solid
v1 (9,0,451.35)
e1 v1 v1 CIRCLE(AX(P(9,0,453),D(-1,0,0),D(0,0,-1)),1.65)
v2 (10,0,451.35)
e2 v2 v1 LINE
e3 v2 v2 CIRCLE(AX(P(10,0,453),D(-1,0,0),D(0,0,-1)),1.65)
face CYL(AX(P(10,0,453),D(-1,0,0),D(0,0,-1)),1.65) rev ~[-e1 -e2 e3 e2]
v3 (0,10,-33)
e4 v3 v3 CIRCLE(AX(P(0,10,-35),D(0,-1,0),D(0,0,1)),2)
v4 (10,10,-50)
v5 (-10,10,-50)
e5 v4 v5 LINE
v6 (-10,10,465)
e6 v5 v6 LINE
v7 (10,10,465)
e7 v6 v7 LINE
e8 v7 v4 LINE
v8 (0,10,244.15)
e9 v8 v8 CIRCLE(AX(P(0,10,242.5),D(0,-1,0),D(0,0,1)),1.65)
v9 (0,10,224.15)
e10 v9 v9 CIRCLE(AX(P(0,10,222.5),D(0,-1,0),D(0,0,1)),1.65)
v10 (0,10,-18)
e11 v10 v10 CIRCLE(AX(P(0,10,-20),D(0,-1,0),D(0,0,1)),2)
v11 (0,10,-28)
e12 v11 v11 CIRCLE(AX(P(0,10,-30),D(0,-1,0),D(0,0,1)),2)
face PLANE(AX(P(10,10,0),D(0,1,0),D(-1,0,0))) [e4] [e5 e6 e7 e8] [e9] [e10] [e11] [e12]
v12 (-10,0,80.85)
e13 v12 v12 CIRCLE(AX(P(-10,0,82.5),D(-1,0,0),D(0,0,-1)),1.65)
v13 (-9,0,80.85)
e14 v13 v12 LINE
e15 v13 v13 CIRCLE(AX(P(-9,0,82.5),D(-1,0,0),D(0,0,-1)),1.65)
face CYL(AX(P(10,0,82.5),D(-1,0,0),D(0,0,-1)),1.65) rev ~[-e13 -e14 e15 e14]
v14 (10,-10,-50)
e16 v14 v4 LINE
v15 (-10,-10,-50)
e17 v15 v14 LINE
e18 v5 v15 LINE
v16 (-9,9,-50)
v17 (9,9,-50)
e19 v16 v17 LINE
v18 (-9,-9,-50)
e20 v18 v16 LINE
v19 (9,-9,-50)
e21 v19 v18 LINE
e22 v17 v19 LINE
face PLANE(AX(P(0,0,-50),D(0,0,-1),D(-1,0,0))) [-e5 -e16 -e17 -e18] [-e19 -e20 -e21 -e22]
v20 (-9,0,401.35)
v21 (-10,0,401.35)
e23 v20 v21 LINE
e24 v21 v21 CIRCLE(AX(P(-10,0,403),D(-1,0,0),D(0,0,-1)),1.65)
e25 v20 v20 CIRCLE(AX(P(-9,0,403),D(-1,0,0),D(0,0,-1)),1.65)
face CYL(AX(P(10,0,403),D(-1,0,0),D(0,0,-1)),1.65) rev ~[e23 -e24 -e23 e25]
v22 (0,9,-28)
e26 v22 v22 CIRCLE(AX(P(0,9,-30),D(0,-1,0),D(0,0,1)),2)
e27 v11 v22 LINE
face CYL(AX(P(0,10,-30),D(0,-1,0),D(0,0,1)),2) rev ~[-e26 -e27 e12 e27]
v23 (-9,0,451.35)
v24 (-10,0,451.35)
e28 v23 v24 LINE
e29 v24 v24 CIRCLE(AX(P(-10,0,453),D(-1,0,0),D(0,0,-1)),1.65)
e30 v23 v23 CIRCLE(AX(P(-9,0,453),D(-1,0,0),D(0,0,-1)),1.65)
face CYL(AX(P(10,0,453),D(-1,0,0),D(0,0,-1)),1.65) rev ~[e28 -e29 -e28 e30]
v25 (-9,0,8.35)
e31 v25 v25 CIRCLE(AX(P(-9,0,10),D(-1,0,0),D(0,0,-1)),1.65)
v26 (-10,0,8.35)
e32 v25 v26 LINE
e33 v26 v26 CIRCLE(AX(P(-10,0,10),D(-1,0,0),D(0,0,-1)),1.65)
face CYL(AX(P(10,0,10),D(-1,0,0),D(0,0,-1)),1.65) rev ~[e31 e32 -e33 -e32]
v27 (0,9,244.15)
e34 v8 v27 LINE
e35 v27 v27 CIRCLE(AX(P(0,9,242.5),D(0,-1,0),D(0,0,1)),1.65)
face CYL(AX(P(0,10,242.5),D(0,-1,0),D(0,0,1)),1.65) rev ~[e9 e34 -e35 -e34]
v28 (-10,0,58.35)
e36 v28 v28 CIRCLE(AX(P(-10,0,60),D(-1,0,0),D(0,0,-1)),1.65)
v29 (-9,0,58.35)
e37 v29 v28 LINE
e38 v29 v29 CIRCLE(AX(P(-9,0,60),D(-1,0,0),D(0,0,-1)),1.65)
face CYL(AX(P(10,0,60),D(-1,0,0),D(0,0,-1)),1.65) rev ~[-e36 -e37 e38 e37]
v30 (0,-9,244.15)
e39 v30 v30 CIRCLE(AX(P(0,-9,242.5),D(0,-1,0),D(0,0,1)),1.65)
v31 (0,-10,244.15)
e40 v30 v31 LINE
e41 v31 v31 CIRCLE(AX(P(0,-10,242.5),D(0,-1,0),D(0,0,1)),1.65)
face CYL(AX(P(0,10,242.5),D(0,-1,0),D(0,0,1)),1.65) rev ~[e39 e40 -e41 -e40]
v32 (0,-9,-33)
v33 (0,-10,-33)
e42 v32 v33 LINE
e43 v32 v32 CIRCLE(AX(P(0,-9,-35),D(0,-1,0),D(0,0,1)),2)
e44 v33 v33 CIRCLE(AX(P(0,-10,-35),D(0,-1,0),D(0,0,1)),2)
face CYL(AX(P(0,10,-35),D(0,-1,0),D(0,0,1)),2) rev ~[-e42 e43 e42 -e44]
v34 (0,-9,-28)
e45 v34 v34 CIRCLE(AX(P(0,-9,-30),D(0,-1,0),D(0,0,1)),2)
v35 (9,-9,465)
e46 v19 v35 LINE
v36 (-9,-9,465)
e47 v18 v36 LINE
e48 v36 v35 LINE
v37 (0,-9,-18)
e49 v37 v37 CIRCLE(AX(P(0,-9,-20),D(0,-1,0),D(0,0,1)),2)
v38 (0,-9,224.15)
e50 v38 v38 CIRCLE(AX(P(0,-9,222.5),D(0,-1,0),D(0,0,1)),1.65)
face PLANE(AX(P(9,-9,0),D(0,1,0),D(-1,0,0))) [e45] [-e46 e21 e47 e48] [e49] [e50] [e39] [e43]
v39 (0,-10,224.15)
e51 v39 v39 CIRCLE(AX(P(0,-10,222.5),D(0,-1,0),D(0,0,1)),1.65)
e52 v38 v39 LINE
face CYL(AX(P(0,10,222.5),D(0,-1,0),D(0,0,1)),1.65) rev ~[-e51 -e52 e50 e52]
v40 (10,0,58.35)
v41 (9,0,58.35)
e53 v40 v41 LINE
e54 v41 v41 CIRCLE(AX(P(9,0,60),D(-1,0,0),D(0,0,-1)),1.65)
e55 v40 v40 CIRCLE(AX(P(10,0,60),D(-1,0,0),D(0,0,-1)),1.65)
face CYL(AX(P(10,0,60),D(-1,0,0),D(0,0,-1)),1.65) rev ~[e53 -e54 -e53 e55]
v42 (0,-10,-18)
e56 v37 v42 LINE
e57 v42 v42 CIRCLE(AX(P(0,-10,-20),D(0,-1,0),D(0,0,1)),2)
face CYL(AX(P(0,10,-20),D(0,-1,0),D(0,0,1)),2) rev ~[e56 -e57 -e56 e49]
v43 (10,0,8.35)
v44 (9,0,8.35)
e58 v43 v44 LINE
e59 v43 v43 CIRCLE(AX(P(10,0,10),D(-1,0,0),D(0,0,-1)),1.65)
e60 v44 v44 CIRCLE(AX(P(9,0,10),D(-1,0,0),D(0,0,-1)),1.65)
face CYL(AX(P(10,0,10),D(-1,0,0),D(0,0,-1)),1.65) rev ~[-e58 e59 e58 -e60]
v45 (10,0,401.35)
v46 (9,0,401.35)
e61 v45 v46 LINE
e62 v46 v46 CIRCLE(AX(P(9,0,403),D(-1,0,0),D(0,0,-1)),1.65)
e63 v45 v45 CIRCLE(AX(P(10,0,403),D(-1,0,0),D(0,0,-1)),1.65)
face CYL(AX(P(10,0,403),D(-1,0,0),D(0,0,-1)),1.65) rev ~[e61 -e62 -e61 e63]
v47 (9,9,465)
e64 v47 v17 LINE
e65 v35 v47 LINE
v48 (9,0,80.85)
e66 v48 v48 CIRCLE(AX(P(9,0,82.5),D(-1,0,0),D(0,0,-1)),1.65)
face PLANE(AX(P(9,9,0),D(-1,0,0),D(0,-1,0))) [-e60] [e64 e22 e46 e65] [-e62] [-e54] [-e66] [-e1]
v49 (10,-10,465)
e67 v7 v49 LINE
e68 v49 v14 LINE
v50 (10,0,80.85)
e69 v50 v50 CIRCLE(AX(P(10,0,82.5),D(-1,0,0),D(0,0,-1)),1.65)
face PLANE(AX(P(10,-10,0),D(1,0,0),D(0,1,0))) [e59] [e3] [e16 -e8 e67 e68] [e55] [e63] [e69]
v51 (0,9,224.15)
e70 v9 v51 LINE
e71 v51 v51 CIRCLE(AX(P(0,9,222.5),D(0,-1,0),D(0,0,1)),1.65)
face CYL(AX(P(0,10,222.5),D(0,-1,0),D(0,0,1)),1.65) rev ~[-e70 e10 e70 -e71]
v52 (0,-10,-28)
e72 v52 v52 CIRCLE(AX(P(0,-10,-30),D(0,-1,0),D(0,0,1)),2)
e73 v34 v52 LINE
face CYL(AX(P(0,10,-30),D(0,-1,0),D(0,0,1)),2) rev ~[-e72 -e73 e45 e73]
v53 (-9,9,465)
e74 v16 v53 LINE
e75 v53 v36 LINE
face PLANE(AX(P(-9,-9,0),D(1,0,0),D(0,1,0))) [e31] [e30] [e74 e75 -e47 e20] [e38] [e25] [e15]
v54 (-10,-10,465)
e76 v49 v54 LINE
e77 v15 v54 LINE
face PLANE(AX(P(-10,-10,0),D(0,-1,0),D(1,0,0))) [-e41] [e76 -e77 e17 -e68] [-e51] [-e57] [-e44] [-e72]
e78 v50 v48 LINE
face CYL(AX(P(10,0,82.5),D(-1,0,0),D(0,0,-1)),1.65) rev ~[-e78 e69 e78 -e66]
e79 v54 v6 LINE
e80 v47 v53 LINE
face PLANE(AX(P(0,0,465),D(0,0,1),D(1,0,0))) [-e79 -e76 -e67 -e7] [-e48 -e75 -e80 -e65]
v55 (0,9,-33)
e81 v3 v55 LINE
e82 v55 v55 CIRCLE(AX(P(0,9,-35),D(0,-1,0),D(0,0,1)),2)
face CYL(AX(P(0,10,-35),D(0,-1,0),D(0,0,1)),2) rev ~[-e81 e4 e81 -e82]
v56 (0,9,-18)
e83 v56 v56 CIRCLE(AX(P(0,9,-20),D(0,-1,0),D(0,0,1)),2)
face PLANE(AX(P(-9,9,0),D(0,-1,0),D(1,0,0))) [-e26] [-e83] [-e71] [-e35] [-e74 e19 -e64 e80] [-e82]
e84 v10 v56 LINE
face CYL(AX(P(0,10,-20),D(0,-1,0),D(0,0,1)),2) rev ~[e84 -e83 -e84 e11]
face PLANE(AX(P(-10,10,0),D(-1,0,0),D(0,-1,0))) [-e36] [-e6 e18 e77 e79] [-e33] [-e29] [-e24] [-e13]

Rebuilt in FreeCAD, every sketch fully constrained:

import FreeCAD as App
import Part
import Sketcher

doc = App.newDocument("Part")
body = doc.addObject("PartDesign::Body", "Body")

sketch1 = body.newObject("Sketcher::SketchObject", "Sketch")
sketch1.AttachmentSupport = (doc.getObject("XY_Plane"), [""])
sketch1.MapMode = "FlatFace"
sketch1.addGeometry([
    Part.LineSegment(App.Vector(-10, -10, 0), App.Vector(10, -10, 0)),
    Part.LineSegment(App.Vector(10, -10, 0), App.Vector(10, 10, 0)),
    Part.LineSegment(App.Vector(10, 10, 0), App.Vector(-10, 10, 0)),
    Part.LineSegment(App.Vector(-10, 10, 0), App.Vector(-10, -10, 0)),
    Part.LineSegment(App.Vector(-9, 9, 0), App.Vector(9, 9, 0)),
    Part.LineSegment(App.Vector(9, 9, 0), App.Vector(9, -9, 0)),
    Part.LineSegment(App.Vector(9, -9, 0), App.Vector(-9, -9, 0)),
    Part.LineSegment(App.Vector(-9, -9, 0), App.Vector(-9, 9, 0)),
], False)
sketch1.addConstraint([
    Sketcher.Constraint("Coincident", 0, 2, 1, 1),
    Sketcher.Constraint("Coincident", 1, 2, 2, 1),
    Sketcher.Constraint("Coincident", 2, 2, 3, 1),
    Sketcher.Constraint("Coincident", 3, 2, 0, 1),
    Sketcher.Constraint("Coincident", 4, 2, 5, 1),
    Sketcher.Constraint("Coincident", 5, 2, 6, 1),
    Sketcher.Constraint("Coincident", 6, 2, 7, 1),
    Sketcher.Constraint("Coincident", 7, 2, 4, 1),
    Sketcher.Constraint("Horizontal", 0),
    Sketcher.Constraint("Vertical", 1),
    Sketcher.Constraint("Horizontal", 2),
    Sketcher.Constraint("Vertical", 3),
    Sketcher.Constraint("Horizontal", 4),
    Sketcher.Constraint("Vertical", 5),
    Sketcher.Constraint("Horizontal", 6),
    Sketcher.Constraint("Vertical", 7),
    Sketcher.Constraint("Symmetric", 0, 2, 2, 2, -1, 1),
    Sketcher.Constraint("Symmetric", 4, 2, 6, 2, -1, 1),
    Sketcher.Constraint("Equal", 2, 1),
    Sketcher.Constraint("Equal", 6, 5),
    Sketcher.Constraint("DistanceX", 0, 1, 0, 2, 20.0),
    Sketcher.Constraint("DistanceX", 4, 2, 1, 2, 1.0),
])
pad1 = body.newObject("PartDesign::Pad", "Pad")
pad1.Profile = sketch1
pad1.Length = 465

sketch2 = body.newObject("Sketcher::SketchObject", "Sketch001")
sketch2.AttachmentSupport = (doc.getObject("YZ_Plane"), [""])
sketch2.MapMode = "FlatFace"
sketch2.AttachmentOffset = App.Placement(App.Vector(0, 0, 10), App.Rotation())
sketch2.addGeometry([
    Part.Circle(App.Vector(0, 403, 0), App.Vector(0, 0, 1), 1.6),
    Part.Circle(App.Vector(0, 60, 0), App.Vector(0, 0, 1), 1.6),
    Part.Circle(App.Vector(0, 10, 0), App.Vector(0, 0, 1), 1.6),
    Part.Circle(App.Vector(0, 453, 0), App.Vector(0, 0, 1), 1.6),
    Part.Circle(App.Vector(0, 82.5, 0), App.Vector(0, 0, 1), 1.6),
], False)
sketch2.addConstraint([
    Sketcher.Constraint("Equal", 0, 1),
    Sketcher.Constraint("Equal", 1, 2),
    Sketcher.Constraint("Equal", 2, 3),
    Sketcher.Constraint("Equal", 3, 4),
    Sketcher.Constraint("PointOnObject", 0, 3, -2),
    Sketcher.Constraint("PointOnObject", 1, 3, -2),
    Sketcher.Constraint("PointOnObject", 2, 3, -2),
    Sketcher.Constraint("PointOnObject", 3, 3, -2),
    Sketcher.Constraint("PointOnObject", 4, 3, -2),
    Sketcher.Constraint("Diameter", 0, 3.3),
    Sketcher.Constraint("DistanceY", -1, 1, 0, 3, 403.0),
    Sketcher.Constraint("DistanceY", -1, 1, 1, 3, 60.0),
    Sketcher.Constraint("DistanceY", -1, 1, 2, 3, 10.0),
    Sketcher.Constraint("DistanceY", -1, 1, 3, 3, 453.0),
    Sketcher.Constraint("DistanceY", -1, 1, 4, 3, 82.5),
])
doc.recompute()
hole = body.newObject("PartDesign::Hole", "Hole")
hole.Profile = sketch2
hole.ThreadType = "None"
hole.Diameter = 3.3
hole.DepthType = "ThroughAll"

sketch3 = body.newObject("Sketcher::SketchObject", "Sketch002")
sketch3.AttachmentSupport = (doc.getObject("XZ_Plane"), [""])
sketch3.MapMode = "FlatFace"
sketch3.AttachmentOffset = App.Placement(App.Vector(0, 0, -10), App.Rotation())
sketch3.addGeometry([
    Part.Circle(App.Vector(0, 242.5, 0), App.Vector(0, 0, 1), 1.6),
    Part.Circle(App.Vector(0, 222.5, 0), App.Vector(0, 0, 1), 1.6),
], False)
sketch3.addConstraint([
    Sketcher.Constraint("Equal", 0, 1),
    Sketcher.Constraint("PointOnObject", 0, 3, -2),
    Sketcher.Constraint("PointOnObject", 1, 3, -2),
    Sketcher.Constraint("Diameter", 0, 3.3),
    Sketcher.Constraint("DistanceY", 1, 3, 0, 3, 20.0),
    Sketcher.Constraint("DistanceY", -1, 1, 0, 3, 242.5),
])
doc.recompute()
hole2 = body.newObject("PartDesign::Hole", "Hole001")
hole2.Profile = sketch3
hole2.ThreadType = "None"
hole2.Diameter = 3.3
hole2.DepthType = "ThroughAll"
hole2.Reversed = True

sketch4 = body.newObject("Sketcher::SketchObject", "Sketch003")
sketch4.AttachmentSupport = (doc.getObject("XY_Plane"), [""])
sketch4.MapMode = "FlatFace"
sketch4.addGeometry([
    Part.LineSegment(App.Vector(-10, 10, 0), App.Vector(10, 10, 0)),
    Part.LineSegment(App.Vector(10, 10, 0), App.Vector(10, -10, 0)),
    Part.LineSegment(App.Vector(10, -10, 0), App.Vector(-10, -10, 0)),
    Part.LineSegment(App.Vector(-10, -10, 0), App.Vector(-10, 10, 0)),
    Part.LineSegment(App.Vector(9, -9, 0), App.Vector(9, 9, 0)),
    Part.LineSegment(App.Vector(9, 9, 0), App.Vector(-9, 9, 0)),
    Part.LineSegment(App.Vector(-9, 9, 0), App.Vector(-9, -9, 0)),
    Part.LineSegment(App.Vector(-9, -9, 0), App.Vector(9, -9, 0)),
], False)
sketch4.addConstraint([
    Sketcher.Constraint("Coincident", 0, 2, 1, 1),
    Sketcher.Constraint("Coincident", 1, 2, 2, 1),
    Sketcher.Constraint("Coincident", 2, 2, 3, 1),
    Sketcher.Constraint("Coincident", 3, 2, 0, 1),
    Sketcher.Constraint("Coincident", 4, 2, 5, 1),
    Sketcher.Constraint("Coincident", 5, 2, 6, 1),
    Sketcher.Constraint("Coincident", 6, 2, 7, 1),
    Sketcher.Constraint("Coincident", 7, 2, 4, 1),
    Sketcher.Constraint("Horizontal", 0),
    Sketcher.Constraint("Vertical", 1),
    Sketcher.Constraint("Horizontal", 2),
    Sketcher.Constraint("Vertical", 3),
    Sketcher.Constraint("Vertical", 4),
    Sketcher.Constraint("Horizontal", 5),
    Sketcher.Constraint("Vertical", 6),
    Sketcher.Constraint("Horizontal", 7),
    Sketcher.Constraint("Symmetric", 0, 2, 2, 2, -1, 1),
    Sketcher.Constraint("Symmetric", 4, 2, 6, 2, -1, 1),
    Sketcher.Constraint("Equal", 2, 1),
    Sketcher.Constraint("Equal", 7, 4),
    Sketcher.Constraint("DistanceX", 0, 1, 0, 2, 20.0),
    Sketcher.Constraint("DistanceX", 5, 2, 5, 1, 18.0),
])
pad2 = body.newObject("PartDesign::Pad", "Pad001")
pad2.Profile = sketch4
pad2.Length = 50
pad2.Reversed = True

sketch5 = body.newObject("Sketcher::SketchObject", "Sketch004")
sketch5.AttachmentSupport = (doc.getObject("XZ_Plane"), [""])
sketch5.MapMode = "FlatFace"
sketch5.AttachmentOffset = App.Placement(App.Vector(0, 0, -10), App.Rotation())
sketch5.addGeometry([
    Part.Circle(App.Vector(0, -30, 0), App.Vector(0, 0, 1), 2),
    Part.Circle(App.Vector(0, -20, 0), App.Vector(0, 0, 1), 2),
    Part.Circle(App.Vector(0, -35, 0), App.Vector(0, 0, 1), 2),
], False)
sketch5.addConstraint([
    Sketcher.Constraint("Equal", 0, 1),
    Sketcher.Constraint("Equal", 1, 2),
    Sketcher.Constraint("PointOnObject", 0, 3, -2),
    Sketcher.Constraint("PointOnObject", 1, 3, -2),
    Sketcher.Constraint("PointOnObject", 2, 3, -2),
    Sketcher.Constraint("Diameter", 0, 4.0),
    Sketcher.Constraint("DistanceY", 0, 3, -1, 1, 30.0),
    Sketcher.Constraint("DistanceY", 1, 3, -1, 1, 20.0),
    Sketcher.Constraint("DistanceY", 2, 3, -1, 1, 35.0),
])
doc.recompute()
hole3 = body.newObject("PartDesign::Hole", "Hole002")
hole3.Profile = sketch5
hole3.ThreadType = "None"
hole3.Diameter = 4
hole3.DepthType = "ThroughAll"
hole3.Reversed = True

doc.recompute()
